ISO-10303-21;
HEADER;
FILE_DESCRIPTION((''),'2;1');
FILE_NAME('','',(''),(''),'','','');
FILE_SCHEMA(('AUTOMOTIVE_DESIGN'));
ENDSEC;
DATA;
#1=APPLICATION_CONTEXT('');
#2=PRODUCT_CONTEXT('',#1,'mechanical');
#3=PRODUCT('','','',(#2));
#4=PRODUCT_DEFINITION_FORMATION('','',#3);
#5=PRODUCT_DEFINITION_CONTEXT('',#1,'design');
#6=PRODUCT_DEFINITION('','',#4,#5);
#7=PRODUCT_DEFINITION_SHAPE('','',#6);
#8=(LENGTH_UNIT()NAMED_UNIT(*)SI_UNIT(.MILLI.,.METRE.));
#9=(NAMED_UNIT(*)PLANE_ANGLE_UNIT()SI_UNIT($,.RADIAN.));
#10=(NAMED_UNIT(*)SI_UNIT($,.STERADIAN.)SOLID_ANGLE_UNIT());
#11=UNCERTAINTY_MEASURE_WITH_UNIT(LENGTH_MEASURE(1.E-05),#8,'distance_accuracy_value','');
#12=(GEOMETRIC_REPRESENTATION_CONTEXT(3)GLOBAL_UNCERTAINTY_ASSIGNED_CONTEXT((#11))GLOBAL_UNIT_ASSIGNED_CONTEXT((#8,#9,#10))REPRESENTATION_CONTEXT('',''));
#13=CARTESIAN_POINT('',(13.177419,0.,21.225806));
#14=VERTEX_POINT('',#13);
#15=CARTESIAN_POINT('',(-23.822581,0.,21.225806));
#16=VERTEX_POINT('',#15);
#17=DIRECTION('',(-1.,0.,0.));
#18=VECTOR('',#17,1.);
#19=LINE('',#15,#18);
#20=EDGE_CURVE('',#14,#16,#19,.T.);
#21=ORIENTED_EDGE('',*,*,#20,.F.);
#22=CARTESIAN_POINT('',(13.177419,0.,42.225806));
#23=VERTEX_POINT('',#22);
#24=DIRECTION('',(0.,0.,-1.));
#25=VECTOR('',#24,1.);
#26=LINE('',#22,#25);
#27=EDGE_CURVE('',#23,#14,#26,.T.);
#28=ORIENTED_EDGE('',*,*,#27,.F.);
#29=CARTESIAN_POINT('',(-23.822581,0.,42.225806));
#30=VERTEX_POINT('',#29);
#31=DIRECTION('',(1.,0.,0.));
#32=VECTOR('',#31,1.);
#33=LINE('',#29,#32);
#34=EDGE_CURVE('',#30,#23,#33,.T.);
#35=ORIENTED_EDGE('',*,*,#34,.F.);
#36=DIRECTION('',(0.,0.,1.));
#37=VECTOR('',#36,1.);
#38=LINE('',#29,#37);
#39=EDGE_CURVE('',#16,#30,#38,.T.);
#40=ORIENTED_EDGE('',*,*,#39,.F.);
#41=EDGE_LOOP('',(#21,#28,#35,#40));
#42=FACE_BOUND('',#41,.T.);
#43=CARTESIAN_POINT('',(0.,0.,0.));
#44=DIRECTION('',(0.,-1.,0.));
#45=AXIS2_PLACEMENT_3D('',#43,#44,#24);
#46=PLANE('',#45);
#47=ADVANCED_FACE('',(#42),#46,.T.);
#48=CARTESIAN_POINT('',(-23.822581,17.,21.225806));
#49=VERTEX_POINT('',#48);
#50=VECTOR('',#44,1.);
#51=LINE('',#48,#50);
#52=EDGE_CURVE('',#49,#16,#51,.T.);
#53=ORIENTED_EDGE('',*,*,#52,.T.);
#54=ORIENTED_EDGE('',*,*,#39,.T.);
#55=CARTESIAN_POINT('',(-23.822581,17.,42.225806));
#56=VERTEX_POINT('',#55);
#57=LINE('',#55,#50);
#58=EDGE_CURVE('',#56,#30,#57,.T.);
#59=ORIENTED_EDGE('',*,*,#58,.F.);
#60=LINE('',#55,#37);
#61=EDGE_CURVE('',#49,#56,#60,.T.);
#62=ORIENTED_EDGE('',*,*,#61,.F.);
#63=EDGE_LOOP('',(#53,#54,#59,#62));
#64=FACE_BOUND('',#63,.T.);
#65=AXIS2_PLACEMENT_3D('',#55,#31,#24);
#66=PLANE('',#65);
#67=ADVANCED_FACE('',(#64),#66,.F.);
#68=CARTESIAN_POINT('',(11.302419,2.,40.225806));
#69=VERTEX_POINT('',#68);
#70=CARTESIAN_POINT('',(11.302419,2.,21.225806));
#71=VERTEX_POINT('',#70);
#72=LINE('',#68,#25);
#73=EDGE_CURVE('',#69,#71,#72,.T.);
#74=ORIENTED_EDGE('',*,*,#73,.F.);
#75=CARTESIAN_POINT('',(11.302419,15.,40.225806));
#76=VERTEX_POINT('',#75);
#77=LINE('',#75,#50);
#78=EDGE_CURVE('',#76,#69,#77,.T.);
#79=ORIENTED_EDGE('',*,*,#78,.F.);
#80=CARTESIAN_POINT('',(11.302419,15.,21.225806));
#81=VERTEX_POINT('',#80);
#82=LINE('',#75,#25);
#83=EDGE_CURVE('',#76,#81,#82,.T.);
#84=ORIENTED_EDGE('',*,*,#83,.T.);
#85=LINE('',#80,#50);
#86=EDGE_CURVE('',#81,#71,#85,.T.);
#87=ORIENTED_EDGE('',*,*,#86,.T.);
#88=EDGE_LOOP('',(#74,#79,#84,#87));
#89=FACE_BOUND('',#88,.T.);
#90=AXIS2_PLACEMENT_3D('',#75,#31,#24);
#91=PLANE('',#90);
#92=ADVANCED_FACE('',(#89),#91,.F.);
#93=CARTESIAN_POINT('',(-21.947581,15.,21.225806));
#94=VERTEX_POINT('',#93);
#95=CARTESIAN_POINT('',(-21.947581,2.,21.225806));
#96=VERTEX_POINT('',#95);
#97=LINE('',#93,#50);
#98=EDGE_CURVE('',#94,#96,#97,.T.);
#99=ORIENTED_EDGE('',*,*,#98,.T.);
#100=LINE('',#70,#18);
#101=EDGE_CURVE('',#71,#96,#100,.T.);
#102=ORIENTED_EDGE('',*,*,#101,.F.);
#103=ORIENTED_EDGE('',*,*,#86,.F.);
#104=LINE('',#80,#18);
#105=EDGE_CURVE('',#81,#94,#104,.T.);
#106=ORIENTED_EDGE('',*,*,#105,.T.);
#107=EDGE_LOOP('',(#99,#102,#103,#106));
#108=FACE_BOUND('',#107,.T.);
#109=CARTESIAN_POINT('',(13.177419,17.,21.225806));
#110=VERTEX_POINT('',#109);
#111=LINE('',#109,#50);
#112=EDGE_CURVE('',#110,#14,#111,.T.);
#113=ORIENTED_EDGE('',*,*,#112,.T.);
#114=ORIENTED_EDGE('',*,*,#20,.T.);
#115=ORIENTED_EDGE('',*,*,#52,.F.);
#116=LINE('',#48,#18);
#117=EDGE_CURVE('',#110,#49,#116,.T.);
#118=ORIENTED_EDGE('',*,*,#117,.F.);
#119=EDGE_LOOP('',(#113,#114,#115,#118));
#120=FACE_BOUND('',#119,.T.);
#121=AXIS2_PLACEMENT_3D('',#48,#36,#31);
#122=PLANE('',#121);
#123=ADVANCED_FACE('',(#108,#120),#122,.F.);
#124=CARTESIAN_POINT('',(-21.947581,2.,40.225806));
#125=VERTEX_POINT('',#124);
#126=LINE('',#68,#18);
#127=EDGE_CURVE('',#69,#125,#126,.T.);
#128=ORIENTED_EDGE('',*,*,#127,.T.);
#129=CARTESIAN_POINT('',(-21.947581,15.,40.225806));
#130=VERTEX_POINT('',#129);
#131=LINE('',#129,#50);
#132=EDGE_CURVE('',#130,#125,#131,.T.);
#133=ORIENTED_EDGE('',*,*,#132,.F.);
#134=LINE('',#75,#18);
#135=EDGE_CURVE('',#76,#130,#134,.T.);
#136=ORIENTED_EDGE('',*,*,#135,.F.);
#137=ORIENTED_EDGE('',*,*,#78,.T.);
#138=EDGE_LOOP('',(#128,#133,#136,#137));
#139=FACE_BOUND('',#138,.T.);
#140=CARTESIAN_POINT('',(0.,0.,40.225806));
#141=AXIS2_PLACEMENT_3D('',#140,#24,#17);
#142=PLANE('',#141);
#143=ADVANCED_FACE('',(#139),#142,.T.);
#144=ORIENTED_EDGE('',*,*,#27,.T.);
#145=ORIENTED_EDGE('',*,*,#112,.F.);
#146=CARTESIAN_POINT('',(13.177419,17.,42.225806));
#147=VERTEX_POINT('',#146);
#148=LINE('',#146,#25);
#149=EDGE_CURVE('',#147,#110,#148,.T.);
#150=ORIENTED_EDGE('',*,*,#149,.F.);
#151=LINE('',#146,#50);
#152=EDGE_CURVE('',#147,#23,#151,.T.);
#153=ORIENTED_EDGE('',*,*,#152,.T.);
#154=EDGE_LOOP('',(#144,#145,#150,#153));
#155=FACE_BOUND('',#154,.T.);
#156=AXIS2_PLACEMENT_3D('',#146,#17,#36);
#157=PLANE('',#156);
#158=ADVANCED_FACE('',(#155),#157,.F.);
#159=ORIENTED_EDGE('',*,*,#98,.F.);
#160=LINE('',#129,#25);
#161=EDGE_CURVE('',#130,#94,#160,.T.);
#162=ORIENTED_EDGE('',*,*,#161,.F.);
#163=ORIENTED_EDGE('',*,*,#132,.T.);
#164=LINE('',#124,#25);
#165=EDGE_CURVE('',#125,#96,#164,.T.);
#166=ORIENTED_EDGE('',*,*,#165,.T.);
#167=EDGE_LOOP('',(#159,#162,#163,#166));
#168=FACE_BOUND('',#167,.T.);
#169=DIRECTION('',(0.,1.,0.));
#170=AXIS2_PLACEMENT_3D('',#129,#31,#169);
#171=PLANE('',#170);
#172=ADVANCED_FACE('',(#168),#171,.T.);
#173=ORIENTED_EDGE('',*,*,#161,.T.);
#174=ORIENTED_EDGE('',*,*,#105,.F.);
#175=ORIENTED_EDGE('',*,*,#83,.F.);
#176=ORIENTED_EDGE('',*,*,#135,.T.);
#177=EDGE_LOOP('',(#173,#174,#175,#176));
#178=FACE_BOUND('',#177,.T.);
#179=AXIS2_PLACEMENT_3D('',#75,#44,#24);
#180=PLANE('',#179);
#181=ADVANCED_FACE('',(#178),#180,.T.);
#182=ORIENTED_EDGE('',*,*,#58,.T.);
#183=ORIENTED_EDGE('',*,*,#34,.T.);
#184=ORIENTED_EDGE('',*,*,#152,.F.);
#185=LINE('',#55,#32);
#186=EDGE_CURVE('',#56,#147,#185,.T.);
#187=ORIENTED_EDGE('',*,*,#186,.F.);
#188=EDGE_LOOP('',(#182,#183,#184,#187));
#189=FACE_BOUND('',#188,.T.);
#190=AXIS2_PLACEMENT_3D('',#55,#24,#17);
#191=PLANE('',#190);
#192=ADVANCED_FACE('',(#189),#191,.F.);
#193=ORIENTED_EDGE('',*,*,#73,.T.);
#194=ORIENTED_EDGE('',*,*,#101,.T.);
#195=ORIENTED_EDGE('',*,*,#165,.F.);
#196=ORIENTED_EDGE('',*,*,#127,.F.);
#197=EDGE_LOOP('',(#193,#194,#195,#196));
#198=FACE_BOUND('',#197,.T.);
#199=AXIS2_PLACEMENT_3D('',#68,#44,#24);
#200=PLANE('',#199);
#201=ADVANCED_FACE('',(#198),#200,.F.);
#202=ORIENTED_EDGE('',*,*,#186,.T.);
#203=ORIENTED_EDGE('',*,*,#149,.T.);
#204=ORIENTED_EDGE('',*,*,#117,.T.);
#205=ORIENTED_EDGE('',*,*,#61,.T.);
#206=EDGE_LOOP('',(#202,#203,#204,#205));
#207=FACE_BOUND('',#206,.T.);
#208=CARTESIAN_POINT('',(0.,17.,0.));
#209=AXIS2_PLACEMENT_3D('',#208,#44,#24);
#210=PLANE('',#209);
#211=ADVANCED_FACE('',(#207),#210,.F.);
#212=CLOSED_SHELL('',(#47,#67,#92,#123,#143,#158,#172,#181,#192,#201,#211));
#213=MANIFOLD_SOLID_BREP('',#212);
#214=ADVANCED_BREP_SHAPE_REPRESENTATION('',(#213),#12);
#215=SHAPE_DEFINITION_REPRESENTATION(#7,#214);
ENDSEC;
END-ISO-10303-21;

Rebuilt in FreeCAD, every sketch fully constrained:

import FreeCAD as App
import Part
import Sketcher

V = App.Vector
Q = App.Units.Quantity

doc = App.newDocument("Part")
body = doc.addObject("PartDesign::Body", "Body")

sketch1 = body.newObject("Sketcher::SketchObject", "Sketch")
sketch1.AttachmentSupport = (doc.getObject("XZ_Plane"), [""])
sketch1.MapMode = "FlatFace"
sketch1.addGeometry([
    Part.LineSegment(V(-24, 21, 0), V(-24, 42, 0)),
    Part.LineSegment(V(-24, 42, 0), V(13, 42, 0)),
    Part.LineSegment(V(13, 42, 0), V(13, 21, 0)),
    Part.LineSegment(V(13, 21, 0), V(-24, 21, 0)),
], False)
sketch1.addConstraint([
    Sketcher.Constraint("Coincident", 0, 2, 1, 1),
    Sketcher.Constraint("Coincident", 1, 2, 2, 1),
    Sketcher.Constraint("Coincident", 2, 2, 3, 1),
    Sketcher.Constraint("Coincident", 3, 2, 0, 1),
    Sketcher.Constraint("Vertical", 0),
    Sketcher.Constraint("Horizontal", 1),
    Sketcher.Constraint("Vertical", 2),
    Sketcher.Constraint("Horizontal", 3),
    Sketcher.Constraint("DistanceX", 1, 1, 1, 2, Q("37 mm")),
    Sketcher.Constraint("DistanceY", 0, 1, 0, 2, Q("21 mm")),
    Sketcher.Constraint("DistanceX", 0, 2, -1, 1, Q("23.822581 mm")),
    Sketcher.Constraint("DistanceY", -1, 1, 0, 2, Q("42.225806 mm")),
])
pad1 = body.newObject("PartDesign::Pad", "Pad")
pad1.Profile = sketch1
pad1.Length = 17
pad1.Reversed = True

sketch2 = body.newObject("Sketcher::SketchObject", "Sketch001")
sketch2.AttachmentSupport = (doc.getObject("XY_Plane"), [""])
sketch2.MapMode = "FlatFace"
sketch2.AttachmentOffset = App.Placement(V(0, 0, 21.225806), App.Rotation())
sketch2.addGeometry([
    Part.LineSegment(V(11, 15, 0), V(11, 2, 0)),
    Part.LineSegment(V(11, 2, 0), V(-22, 2, 0)),
    Part.LineSegment(V(-22, 2, 0), V(-22, 15, 0)),
    Part.LineSegment(V(-22, 15, 0), V(11, 15, 0)),
], False)
sketch2.addConstraint([
    Sketcher.Constraint("Coincident", 0, 2, 1, 1),
    Sketcher.Constraint("Coincident", 1, 2, 2, 1),
    Sketcher.Constraint("Coincident", 2, 2, 3, 1),
    Sketcher.Constraint("Coincident", 3, 2, 0, 1),
    Sketcher.Constraint("Vertical", 0),
    Sketcher.Constraint("Horizontal", 1),
    Sketcher.Constraint("Vertical", 2),
    Sketcher.Constraint("Horizontal", 3),
    Sketcher.Constraint("DistanceY", 0, 2, 0, 1, Q("13 mm")),
    Sketcher.Constraint("DistanceY", -1, 1, 0, 2, Q("2 mm")),
    Sketcher.Constraint("DistanceX", 1, 2, 1, 1, Q("33.25 mm")),
    Sketcher.Constraint("DistanceX", -1, 1, 0, 2, Q("11.302419 mm")),
])
pocket1 = body.newObject("PartDesign::Pocket", "Pocket")
pocket1.Profile = sketch2
pocket1.Length = 19
pocket1.Reversed = True

doc.recompute()
